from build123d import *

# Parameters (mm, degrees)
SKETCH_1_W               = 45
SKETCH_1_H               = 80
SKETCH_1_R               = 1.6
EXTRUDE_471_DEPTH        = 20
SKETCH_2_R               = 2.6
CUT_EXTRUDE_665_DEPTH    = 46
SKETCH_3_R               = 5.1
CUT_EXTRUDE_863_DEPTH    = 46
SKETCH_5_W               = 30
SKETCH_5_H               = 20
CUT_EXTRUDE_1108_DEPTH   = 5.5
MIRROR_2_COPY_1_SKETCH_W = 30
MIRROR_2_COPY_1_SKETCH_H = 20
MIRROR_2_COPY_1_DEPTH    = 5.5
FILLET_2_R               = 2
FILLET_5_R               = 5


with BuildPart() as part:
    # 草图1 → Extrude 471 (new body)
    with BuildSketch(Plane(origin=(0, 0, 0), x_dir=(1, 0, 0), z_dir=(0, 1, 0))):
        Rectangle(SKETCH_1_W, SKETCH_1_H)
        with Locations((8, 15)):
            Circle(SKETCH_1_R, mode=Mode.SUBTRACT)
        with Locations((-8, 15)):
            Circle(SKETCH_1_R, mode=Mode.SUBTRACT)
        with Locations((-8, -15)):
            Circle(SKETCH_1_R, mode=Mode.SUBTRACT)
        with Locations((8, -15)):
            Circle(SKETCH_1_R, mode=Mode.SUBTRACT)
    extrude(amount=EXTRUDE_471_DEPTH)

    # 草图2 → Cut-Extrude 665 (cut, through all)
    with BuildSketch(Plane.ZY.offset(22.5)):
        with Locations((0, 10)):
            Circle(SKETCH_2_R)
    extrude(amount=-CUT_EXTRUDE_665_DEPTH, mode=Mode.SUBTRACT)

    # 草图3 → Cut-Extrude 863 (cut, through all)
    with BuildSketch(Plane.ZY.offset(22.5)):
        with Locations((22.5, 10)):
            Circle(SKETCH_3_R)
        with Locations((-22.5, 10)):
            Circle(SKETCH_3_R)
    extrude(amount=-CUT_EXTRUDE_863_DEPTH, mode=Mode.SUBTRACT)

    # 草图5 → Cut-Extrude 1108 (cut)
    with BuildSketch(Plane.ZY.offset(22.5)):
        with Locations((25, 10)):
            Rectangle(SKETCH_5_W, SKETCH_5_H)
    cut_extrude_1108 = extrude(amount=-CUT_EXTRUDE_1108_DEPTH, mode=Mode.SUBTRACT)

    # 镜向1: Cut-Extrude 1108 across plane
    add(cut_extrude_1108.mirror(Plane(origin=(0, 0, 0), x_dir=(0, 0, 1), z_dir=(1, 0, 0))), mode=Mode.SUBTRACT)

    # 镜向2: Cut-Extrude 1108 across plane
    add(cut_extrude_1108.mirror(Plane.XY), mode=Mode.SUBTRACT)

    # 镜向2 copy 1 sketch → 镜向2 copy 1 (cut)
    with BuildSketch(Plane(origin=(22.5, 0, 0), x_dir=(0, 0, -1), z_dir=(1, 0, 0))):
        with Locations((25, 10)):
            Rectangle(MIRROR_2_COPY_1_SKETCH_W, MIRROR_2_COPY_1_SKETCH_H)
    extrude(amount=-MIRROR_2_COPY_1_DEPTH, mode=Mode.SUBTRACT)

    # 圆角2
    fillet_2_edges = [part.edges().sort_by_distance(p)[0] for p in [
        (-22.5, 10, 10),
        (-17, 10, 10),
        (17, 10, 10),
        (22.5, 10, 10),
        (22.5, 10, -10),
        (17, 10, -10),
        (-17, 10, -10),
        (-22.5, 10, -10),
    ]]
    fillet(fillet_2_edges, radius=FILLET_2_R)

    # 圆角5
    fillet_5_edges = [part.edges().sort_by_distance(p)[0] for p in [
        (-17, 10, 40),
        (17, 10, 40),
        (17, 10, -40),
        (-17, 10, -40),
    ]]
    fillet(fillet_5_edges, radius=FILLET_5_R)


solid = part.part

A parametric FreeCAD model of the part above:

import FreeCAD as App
import Part
import Sketcher
Q = App.Units.Quantity


def edges_at(feature, points):
    """Names of the edges that pass closest to the given points."""
    edges = feature.Shape.Edges
    near = lambda p: min(range(len(edges)), key=lambda i: edges[i].distToShape(Part.Vertex(*p))[0])
    return sorted({f"Edge{near(p) + 1}" for p in points})


def add_polygon(sketch, points):
    """Adds a closed chain of lines whose ends are joined by coincident constraints."""
    first, n = sketch.GeometryCount, len(points)
    for a, b in zip(points, points[1:] + points[:1]):
        sketch.addGeometry(Part.LineSegment(App.Vector(*a, 0), App.Vector(*b, 0)), False)
    for i in range(n):
        sketch.addConstraint(Sketcher.Constraint("Coincident", first + i, 2, first + (i + 1) % n, 1))

doc = App.newDocument("Part")
body = doc.addObject("PartDesign::Body", "Body")

# Sketch on XZ plane
sketch1 = doc.addObject("Sketcher::SketchObject", "Sketch")
body.addObject(sketch1)
sketch1.AttachmentSupport = (doc.XZ_Plane, [""])
sketch1.MapMode = "FlatFace"
add_polygon(sketch1, [(-22.5, -40), (-22.5, 40), (22.5, 40), (22.5, -40)])  # lines 0-3
sketch1.addGeometry(Part.Circle(App.Vector(-8, 15, 0), App.Vector(0, 0, 1), 1.6), False)  # 4
sketch1.addGeometry(Part.Circle(App.Vector(8, 15, 0), App.Vector(0, 0, 1), 1.6), False)  # 5
sketch1.addGeometry(Part.Circle(App.Vector(-8, -15, 0), App.Vector(0, 0, 1), 1.6), False)  # 6
sketch1.addGeometry(Part.Circle(App.Vector(8, -15, 0), App.Vector(0, 0, 1), 1.6), False)  # 7
sketch1.addConstraint([
    Sketcher.Constraint("Vertical", 0),
    Sketcher.Constraint("Horizontal", 1),
    Sketcher.Constraint("Vertical", 2),
    Sketcher.Constraint("Horizontal", 3),
    Sketcher.Constraint("Equal", 4, 5),
    Sketcher.Constraint("Equal", 5, 6),
    Sketcher.Constraint("Equal", 6, 7),
    Sketcher.Constraint("Symmetric", 5, 3, 6, 3, -1, 1),
    Sketcher.Constraint("Symmetric", 4, 3, 7, 3, -1, 1),
    Sketcher.Constraint("Symmetric", 0, 2, 2, 2, -1, 1),
    Sketcher.Constraint("Symmetric", 4, 3, 5, 3, -2),
    Sketcher.Constraint("Diameter", 4, Q("3.2 mm")),
    Sketcher.Constraint("DistanceX", 1, 1, 1, 2, Q("45 mm")),
    Sketcher.Constraint("DistanceY", 0, 1, 0, 2, Q("80 mm")),
    Sketcher.Constraint("DistanceX", 4, 3, -1, 1, Q("8 mm")),
    Sketcher.Constraint("DistanceY", -1, 1, 4, 3, Q("15 mm")),
])
pad1 = doc.addObject("PartDesign::Pad", "Pad")
body.addObject(pad1)
pad1.Profile = sketch1
pad1.Length = 20
pad1.Reversed = True

# Sketch on YZ plane
sketch2 = doc.addObject("Sketcher::SketchObject", "Sketch001")
body.addObject(sketch2)
sketch2.AttachmentSupport = (doc.YZ_Plane, [""])
sketch2.MapMode = "FlatFace"
sketch2.AttachmentOffset = App.Placement(App.Vector(0, 0, -22.5), App.Rotation())
sketch2.addGeometry(Part.Circle(App.Vector(10, 0, 0), App.Vector(0, 0, 1), 2.6), False)
sketch2.addConstraint([
    Sketcher.Constraint("PointOnObject", 0, 3, -1),
    Sketcher.Constraint("Diameter", 0, Q("5.2 mm")),
    Sketcher.Constraint("DistanceX", -1, 1, 0, 3, Q("10 mm")),
])
pocket1 = doc.addObject("PartDesign::Pocket", "Pocket")
body.addObject(pocket1)
pocket1.Profile = sketch2
pocket1.Type = "ThroughAll"
pocket1.Reversed = True

# Sketch on YZ plane
sketch3 = doc.addObject("Sketcher::SketchObject", "Sketch002")
body.addObject(sketch3)
sketch3.AttachmentSupport = (doc.YZ_Plane, [""])
sketch3.MapMode = "FlatFace"
sketch3.AttachmentOffset = App.Placement(App.Vector(0, 0, -22.5), App.Rotation())
sketch3.addGeometry([
    Part.Circle(App.Vector(10, 22.5, 0), App.Vector(0, 0, 1), 5.1),
    Part.Circle(App.Vector(10, -22.5, 0), App.Vector(0, 0, 1), 5.1),
], False)
sketch3.addConstraint([
    Sketcher.Constraint("Equal", 0, 1),
    Sketcher.Constraint("Symmetric", 0, 3, 1, 3, -1),
    Sketcher.Constraint("Diameter", 0, Q("10.2 mm")),
    Sketcher.Constraint("DistanceX", -1, 1, 0, 3, Q("10 mm")),
    Sketcher.Constraint("DistanceY", 1, 3, 0, 3, Q("45 mm")),
])
pocket2 = doc.addObject("PartDesign::Pocket", "Pocket001")
body.addObject(pocket2)
pocket2.Profile = sketch3
pocket2.Type = "ThroughAll"
pocket2.Reversed = True

# Sketch on YZ plane
sketch4 = doc.addObject("Sketcher::SketchObject", "Sketch003")
body.addObject(sketch4)
sketch4.AttachmentSupport = (doc.YZ_Plane, [""])
sketch4.MapMode = "FlatFace"
sketch4.AttachmentOffset = App.Placement(App.Vector(0, 0, -22.5), App.Rotation())
add_polygon(sketch4, [(20, 10), (0, 10), (0, 40), (20, 40)])  # lines 0-3
sketch4.addConstraint([
    Sketcher.Constraint("Horizontal", 0),
    Sketcher.Constraint("Vertical", 1),
    Sketcher.Constraint("Horizontal", 2),
    Sketcher.Constraint("Vertical", 3),
    Sketcher.Constraint("PointOnObject", 0, 2, -2),
    Sketcher.Constraint("DistanceX", 0, 2, 0, 1, Q("20 mm")),
    Sketcher.Constraint("DistanceY", 1, 1, 1, 2, Q("30 mm")),
    Sketcher.Constraint("DistanceY", -1, 1, 0, 2, Q("10 mm")),
])
pocket3 = doc.addObject("PartDesign::Pocket", "Pocket002")
body.addObject(pocket3)
pocket3.Profile = sketch4
pocket3.Length = 5.5
pocket3.Reversed = True
doc.recompute()

mirrored = doc.addObject("PartDesign::Mirrored", "Mirrored")
body.addObject(mirrored)
mirrored.Originals = [pocket3]
mirrored.MirrorPlane = (doc.YZ_Plane, [""])
body.Tip = mirrored
doc.recompute()

mirrored2 = doc.addObject("PartDesign::Mirrored", "Mirrored001")
body.addObject(mirrored2)
mirrored2.Originals = [pocket3]
mirrored2.MirrorPlane = (doc.XY_Plane, [""])
body.Tip = mirrored2

# Sketch on YZ plane
sketch5 = doc.addObject("Sketcher::SketchObject", "Sketch004")
body.addObject(sketch5)
sketch5.AttachmentSupport = (doc.YZ_Plane, [""])
sketch5.MapMode = "FlatFace"
sketch5.AttachmentOffset = App.Placement(App.Vector(0, 0, 22.5), App.Rotation())
add_polygon(sketch5, [(20, -10), (0, -10), (0, -40), (20, -40)])  # lines 0-3
sketch5.addConstraint([
    Sketcher.Constraint("Horizontal", 0),
    Sketcher.Constraint("Vertical", 1),
    Sketcher.Constraint("Horizontal", 2),
    Sketcher.Constraint("Vertical", 3),
    Sketcher.Constraint("PointOnObject", 0, 2, -2),
    Sketcher.Constraint("DistanceX", 0, 2, 0, 1, Q("20 mm")),
    Sketcher.Constraint("DistanceY", 1, 2, 1, 1, Q("30 mm")),
    Sketcher.Constraint("DistanceY", 0, 2, -1, 1, Q("10 mm")),
])
pocket4 = doc.addObject("PartDesign::Pocket", "Pocket003")
body.addObject(pocket4)
pocket4.Profile = sketch5
pocket4.Length = 5.5
doc.recompute()

fillet = doc.addObject("PartDesign::Fillet", "Fillet")
body.addObject(fillet)
fillet.Base = (pocket4, edges_at(pocket4, [
    (-22.5, 10, 10),
    (-17, 10, 10),
    (17, 10, 10),
    (22.5, 10, 10),
    (22.5, 10, -10),
    (17, 10, -10),
    (-17, 10, -10),
    (-22.5, 10, -10),
]))
fillet.Radius = 2
doc.recompute()

fillet2 = doc.addObject("PartDesign::Fillet", "Fillet001")
body.addObject(fillet2)
fillet2.Base = (fillet, edges_at(fillet, [
    (-17, 10, 40),
    (17, 10, 40),
    (17, 10, -40),
    (-17, 10, -40),
]))
fillet2.Radius = 5

doc.recompute()
